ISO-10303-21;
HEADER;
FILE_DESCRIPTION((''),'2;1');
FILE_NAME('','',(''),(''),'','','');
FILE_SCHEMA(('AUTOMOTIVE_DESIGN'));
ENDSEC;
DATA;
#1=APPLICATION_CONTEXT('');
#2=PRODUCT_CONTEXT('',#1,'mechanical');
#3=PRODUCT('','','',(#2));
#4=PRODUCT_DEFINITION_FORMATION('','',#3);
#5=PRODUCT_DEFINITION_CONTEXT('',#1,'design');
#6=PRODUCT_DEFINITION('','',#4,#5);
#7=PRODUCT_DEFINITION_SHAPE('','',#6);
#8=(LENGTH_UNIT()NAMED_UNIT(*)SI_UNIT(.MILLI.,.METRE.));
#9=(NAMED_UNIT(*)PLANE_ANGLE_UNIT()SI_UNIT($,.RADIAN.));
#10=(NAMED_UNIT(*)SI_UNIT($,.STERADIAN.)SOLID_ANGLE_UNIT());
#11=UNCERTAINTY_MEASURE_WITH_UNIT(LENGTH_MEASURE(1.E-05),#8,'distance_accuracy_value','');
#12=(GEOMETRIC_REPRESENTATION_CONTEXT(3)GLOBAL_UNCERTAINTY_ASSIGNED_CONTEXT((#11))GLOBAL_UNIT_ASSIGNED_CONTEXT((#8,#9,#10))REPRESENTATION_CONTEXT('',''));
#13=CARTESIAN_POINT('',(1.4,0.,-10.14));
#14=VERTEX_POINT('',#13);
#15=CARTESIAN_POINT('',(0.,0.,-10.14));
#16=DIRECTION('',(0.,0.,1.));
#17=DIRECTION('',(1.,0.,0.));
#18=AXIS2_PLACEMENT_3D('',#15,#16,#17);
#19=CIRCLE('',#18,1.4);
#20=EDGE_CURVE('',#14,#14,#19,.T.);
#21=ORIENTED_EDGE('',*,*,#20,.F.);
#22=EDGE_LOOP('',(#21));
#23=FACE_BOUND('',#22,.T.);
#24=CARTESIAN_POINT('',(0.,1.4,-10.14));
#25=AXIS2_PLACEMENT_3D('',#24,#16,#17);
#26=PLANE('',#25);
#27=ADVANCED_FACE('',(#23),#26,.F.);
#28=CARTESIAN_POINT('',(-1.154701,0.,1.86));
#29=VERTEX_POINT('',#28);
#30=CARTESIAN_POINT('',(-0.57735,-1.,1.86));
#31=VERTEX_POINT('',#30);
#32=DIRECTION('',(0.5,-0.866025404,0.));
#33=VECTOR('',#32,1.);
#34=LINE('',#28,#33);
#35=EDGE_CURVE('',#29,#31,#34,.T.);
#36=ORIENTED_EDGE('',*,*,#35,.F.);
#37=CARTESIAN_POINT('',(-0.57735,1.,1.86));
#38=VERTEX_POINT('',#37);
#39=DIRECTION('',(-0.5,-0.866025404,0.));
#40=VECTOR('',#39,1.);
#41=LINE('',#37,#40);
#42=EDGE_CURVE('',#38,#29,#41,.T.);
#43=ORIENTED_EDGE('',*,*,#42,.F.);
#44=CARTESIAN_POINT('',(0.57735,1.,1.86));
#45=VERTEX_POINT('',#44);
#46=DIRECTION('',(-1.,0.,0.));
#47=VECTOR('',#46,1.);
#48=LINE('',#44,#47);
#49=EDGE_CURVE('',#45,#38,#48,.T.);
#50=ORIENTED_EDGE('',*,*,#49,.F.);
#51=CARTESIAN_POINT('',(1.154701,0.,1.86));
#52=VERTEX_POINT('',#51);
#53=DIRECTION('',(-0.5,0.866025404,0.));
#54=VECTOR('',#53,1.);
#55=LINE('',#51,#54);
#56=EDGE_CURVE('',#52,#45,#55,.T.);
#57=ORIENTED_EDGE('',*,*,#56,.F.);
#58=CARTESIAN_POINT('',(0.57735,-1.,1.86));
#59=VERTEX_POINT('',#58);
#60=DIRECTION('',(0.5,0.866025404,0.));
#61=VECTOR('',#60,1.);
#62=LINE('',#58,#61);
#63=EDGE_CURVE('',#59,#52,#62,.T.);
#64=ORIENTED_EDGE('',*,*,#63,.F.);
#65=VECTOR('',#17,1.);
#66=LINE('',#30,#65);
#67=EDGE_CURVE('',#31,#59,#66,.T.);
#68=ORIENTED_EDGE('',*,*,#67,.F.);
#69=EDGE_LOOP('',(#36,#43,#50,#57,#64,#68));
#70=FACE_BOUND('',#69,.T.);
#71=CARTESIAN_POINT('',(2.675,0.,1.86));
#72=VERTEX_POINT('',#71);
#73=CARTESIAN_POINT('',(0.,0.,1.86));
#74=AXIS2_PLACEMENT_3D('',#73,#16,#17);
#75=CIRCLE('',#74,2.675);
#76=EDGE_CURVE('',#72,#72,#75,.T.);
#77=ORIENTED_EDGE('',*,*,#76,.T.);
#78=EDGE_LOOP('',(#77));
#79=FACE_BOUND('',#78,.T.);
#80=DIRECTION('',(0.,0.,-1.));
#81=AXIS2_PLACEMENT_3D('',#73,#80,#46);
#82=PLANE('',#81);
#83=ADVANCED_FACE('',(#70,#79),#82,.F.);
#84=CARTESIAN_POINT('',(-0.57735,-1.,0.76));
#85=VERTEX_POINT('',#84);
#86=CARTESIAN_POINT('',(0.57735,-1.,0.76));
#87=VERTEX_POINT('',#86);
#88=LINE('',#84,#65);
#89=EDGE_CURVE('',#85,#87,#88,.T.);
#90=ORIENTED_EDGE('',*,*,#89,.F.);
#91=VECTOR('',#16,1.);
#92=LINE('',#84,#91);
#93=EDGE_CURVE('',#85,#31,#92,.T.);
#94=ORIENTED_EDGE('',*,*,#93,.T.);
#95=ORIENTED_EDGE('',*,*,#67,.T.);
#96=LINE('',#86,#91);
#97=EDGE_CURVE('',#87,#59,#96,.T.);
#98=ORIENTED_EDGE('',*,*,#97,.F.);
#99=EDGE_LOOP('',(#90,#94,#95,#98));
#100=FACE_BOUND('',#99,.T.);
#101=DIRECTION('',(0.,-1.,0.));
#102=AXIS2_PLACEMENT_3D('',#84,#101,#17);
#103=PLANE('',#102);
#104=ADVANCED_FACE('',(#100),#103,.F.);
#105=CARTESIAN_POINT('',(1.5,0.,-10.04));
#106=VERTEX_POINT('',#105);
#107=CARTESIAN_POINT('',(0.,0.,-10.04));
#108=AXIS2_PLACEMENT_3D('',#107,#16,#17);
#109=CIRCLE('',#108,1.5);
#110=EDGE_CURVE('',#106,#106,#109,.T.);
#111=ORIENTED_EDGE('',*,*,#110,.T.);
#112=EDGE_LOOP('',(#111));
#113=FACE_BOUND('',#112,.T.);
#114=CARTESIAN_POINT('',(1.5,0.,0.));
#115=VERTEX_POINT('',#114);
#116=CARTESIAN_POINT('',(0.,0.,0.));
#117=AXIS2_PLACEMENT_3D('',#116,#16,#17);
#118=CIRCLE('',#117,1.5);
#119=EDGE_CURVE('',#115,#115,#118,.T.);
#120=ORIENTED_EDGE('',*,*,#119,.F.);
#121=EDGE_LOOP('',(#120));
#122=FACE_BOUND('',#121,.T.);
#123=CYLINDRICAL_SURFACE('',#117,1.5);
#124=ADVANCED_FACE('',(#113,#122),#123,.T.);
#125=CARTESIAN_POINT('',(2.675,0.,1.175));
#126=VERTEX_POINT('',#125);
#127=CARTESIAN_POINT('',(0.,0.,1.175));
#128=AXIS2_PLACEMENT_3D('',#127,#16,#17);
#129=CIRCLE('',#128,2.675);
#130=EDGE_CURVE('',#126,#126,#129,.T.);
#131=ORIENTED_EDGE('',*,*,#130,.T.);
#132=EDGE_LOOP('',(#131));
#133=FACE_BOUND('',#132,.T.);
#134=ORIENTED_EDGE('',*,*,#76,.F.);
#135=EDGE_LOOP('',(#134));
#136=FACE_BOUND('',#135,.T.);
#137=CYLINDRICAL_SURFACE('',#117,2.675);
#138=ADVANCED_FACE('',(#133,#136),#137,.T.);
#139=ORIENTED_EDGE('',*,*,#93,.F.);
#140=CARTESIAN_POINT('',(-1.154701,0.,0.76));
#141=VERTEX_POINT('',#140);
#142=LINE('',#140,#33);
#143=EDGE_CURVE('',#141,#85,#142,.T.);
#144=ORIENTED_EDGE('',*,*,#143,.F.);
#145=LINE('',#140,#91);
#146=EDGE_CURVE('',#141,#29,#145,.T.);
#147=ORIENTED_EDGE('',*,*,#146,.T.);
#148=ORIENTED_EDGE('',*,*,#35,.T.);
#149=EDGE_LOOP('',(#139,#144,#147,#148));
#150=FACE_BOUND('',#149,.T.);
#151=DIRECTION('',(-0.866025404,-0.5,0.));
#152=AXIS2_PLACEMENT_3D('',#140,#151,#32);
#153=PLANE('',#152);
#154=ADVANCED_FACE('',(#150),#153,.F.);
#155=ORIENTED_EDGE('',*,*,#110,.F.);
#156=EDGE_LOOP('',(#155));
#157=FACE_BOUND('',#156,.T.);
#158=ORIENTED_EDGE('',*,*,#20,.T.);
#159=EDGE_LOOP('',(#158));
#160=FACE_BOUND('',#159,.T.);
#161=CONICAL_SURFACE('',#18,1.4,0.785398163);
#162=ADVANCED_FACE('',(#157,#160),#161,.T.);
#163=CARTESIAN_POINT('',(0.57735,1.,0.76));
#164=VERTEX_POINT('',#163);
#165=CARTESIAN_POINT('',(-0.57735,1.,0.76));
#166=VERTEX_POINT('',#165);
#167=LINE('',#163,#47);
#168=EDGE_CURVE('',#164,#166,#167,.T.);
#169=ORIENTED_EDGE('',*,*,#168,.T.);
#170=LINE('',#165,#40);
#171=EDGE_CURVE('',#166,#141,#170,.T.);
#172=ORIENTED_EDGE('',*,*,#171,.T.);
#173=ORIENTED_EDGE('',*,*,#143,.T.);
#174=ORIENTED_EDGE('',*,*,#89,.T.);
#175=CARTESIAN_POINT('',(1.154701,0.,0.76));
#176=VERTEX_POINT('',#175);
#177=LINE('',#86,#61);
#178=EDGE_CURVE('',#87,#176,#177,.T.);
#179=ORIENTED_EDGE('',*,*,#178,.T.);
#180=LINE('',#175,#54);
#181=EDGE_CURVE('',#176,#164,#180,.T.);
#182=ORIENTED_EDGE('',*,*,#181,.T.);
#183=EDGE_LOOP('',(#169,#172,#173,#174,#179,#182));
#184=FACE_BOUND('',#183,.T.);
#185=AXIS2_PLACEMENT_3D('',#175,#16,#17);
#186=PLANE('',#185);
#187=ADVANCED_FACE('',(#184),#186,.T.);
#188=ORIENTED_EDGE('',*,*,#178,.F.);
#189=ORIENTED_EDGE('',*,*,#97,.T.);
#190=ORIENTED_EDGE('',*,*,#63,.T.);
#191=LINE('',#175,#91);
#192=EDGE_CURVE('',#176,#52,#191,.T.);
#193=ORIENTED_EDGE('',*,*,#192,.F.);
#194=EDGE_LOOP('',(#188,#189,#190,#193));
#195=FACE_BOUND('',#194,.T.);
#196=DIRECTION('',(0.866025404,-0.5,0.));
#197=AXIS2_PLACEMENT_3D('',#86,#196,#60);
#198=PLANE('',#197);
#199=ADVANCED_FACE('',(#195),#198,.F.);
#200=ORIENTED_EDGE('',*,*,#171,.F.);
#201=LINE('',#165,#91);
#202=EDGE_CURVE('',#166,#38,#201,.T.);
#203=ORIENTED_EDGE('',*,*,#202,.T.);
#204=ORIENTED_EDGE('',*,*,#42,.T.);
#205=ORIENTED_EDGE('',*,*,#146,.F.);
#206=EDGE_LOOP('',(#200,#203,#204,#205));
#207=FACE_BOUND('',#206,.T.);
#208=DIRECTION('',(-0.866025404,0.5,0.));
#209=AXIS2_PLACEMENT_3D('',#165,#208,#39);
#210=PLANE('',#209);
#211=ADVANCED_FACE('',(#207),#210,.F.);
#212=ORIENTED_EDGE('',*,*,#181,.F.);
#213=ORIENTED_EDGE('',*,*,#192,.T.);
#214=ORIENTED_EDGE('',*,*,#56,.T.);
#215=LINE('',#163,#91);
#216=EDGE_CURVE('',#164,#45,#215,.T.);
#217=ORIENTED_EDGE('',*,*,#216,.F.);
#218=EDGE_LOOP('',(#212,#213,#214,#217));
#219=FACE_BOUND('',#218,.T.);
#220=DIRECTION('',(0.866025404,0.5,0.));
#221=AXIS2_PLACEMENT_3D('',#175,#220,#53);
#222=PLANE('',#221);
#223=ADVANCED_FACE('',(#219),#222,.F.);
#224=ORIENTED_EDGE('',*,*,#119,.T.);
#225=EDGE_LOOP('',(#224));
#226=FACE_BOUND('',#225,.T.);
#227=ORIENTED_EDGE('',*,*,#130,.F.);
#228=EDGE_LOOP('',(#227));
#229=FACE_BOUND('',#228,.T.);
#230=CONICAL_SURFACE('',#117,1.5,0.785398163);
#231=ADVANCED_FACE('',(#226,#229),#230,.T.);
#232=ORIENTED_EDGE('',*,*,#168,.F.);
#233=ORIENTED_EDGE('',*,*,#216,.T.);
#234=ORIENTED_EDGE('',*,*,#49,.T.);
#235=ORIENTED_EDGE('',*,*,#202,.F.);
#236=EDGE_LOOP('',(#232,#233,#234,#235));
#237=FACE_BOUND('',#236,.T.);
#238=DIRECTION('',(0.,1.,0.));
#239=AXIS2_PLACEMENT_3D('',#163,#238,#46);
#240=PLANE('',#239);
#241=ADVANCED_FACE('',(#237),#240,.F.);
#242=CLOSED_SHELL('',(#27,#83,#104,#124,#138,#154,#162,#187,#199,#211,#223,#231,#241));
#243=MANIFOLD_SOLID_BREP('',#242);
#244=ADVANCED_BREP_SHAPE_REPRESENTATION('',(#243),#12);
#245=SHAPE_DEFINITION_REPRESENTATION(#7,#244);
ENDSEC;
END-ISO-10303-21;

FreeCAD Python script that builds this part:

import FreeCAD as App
import Part
import Sketcher
Q = App.Units.Quantity

doc = App.newDocument("Part")
body = doc.addObject("PartDesign::Body", "Body")

# Sketch on YZ plane
sketch1 = body.newObject("Sketcher::SketchObject", "Sketch")
sketch1.AttachmentSupport = (doc.getObject("YZ_Plane"), [""])
sketch1.MapMode = "FlatFace"
sketch1.addGeometry([
    Part.LineSegment(App.Vector(1.5, -10.04, 0), App.Vector(1.5, 0, 0)),  # 0
    Part.LineSegment(App.Vector(1.5, 0, 0), App.Vector(2.67, 1.18, 0)),  # 1
    Part.LineSegment(App.Vector(2.67, 1.18, 0), App.Vector(2.67, 1.86, 0)),  # 2
    Part.LineSegment(App.Vector(2.67, 1.86, 0), App.Vector(0, 1.86, 0)),  # 3
    Part.LineSegment(App.Vector(0, 1.86, 0), App.Vector(0, -10.14, 0)),  # 4
    Part.LineSegment(App.Vector(0, -10.14, 0), App.Vector(1.4, -10.14, 0)),  # 5
    Part.LineSegment(App.Vector(1.4, -10.14, 0), App.Vector(1.5, -10.04, 0)),  # 6
], False)
sketch1.addConstraint([
    Sketcher.Constraint("Coincident", 0, 2, 1, 1),
    Sketcher.Constraint("Coincident", 1, 2, 2, 1),
    Sketcher.Constraint("Coincident", 2, 2, 3, 1),
    Sketcher.Constraint("Coincident", 3, 2, 4, 1),
    Sketcher.Constraint("Coincident", 4, 2, 5, 1),
    Sketcher.Constraint("Coincident", 5, 2, 6, 1),
    Sketcher.Constraint("Coincident", 6, 2, 0, 1),
    Sketcher.Constraint("Vertical", 0),
    Sketcher.Constraint("Vertical", 2),
    Sketcher.Constraint("Horizontal", 3),
    Sketcher.Constraint("Vertical", 4),
    Sketcher.Constraint("Horizontal", 5),
    Sketcher.Constraint("PointOnObject", 0, 2, -1),
    Sketcher.Constraint("PointOnObject", 3, 2, -2),
    Sketcher.Constraint("Parallel", 1, 6),
    Sketcher.Constraint("DistanceY", 4, 2, 4, 1, 12.0),
    Sketcher.Constraint("Angle", 1, Q("45 deg")),
    Sketcher.Constraint("DistanceX", 5, 1, 5, 2, 1.4),
    Sketcher.Constraint("DistanceY", 0, 1, 0, 2, 10.04),
    Sketcher.Constraint("DistanceX", -1, 1, 0, 2, 1.5),
    Sketcher.Constraint("DistanceX", 3, 2, 3, 1, 2.675),
])
revolution = body.newObject("PartDesign::Revolution", "Revolution")
revolution.Profile = sketch1
revolution.ReferenceAxis = (sketch1, ["V_Axis"])
revolution.Angle = 360

# Sketch on XY plane
sketch2 = body.newObject("Sketcher::SketchObject", "Sketch001")
sketch2.AttachmentSupport = (doc.getObject("XY_Plane"), [""])
sketch2.MapMode = "FlatFace"
sketch2.AttachmentOffset = App.Placement(App.Vector(0, 0, 1.86), App.Rotation())
sketch2.addGeometry([
    Part.LineSegment(App.Vector(1.2, 0, 0), App.Vector(0.6, 1, 0)),  # 0
    Part.LineSegment(App.Vector(0.6, 1, 0), App.Vector(-0.6, 1, 0)),  # 1
    Part.LineSegment(App.Vector(-0.6, 1, 0), App.Vector(-1.2, 0, 0)),  # 2
    Part.LineSegment(App.Vector(-1.2, 0, 0), App.Vector(-0.6, -1, 0)),  # 3
    Part.LineSegment(App.Vector(-0.6, -1, 0), App.Vector(0.6, -1, 0)),  # 4
    Part.LineSegment(App.Vector(0.6, -1, 0), App.Vector(1.2, 0, 0)),  # 5
], False)
sketch2.addConstraint([
    Sketcher.Constraint("Coincident", 0, 2, 1, 1),
    Sketcher.Constraint("Coincident", 1, 2, 2, 1),
    Sketcher.Constraint("Coincident", 2, 2, 3, 1),
    Sketcher.Constraint("Coincident", 3, 2, 4, 1),
    Sketcher.Constraint("Coincident", 4, 2, 5, 1),
    Sketcher.Constraint("Coincident", 5, 2, 0, 1),
    Sketcher.Constraint("Horizontal", 1),
    Sketcher.Constraint("Horizontal", 4),
    Sketcher.Constraint("Symmetric", 0, 2, 3, 2, -1, 1),
    Sketcher.Constraint("Symmetric", 2, 2, 5, 2, -1, 1),
    Sketcher.Constraint("PointOnObject", 2, 2, -1),
    Sketcher.Constraint("Parallel", 2, 5),
    Sketcher.Constraint("Vertical", 1, 2, 3, 2),
    Sketcher.Constraint("Angle", 0, Q("120 deg")),
    Sketcher.Constraint("DistanceY", -1, 1, 0, 2, 1.0),
    Sketcher.Constraint("DistanceX", 1, 2, 1, 1, 1.154701),
])
pocket1 = body.newObject("PartDesign::Pocket", "Pocket")
pocket1.Profile = sketch2
pocket1.Length = 1.1

doc.recompute()
